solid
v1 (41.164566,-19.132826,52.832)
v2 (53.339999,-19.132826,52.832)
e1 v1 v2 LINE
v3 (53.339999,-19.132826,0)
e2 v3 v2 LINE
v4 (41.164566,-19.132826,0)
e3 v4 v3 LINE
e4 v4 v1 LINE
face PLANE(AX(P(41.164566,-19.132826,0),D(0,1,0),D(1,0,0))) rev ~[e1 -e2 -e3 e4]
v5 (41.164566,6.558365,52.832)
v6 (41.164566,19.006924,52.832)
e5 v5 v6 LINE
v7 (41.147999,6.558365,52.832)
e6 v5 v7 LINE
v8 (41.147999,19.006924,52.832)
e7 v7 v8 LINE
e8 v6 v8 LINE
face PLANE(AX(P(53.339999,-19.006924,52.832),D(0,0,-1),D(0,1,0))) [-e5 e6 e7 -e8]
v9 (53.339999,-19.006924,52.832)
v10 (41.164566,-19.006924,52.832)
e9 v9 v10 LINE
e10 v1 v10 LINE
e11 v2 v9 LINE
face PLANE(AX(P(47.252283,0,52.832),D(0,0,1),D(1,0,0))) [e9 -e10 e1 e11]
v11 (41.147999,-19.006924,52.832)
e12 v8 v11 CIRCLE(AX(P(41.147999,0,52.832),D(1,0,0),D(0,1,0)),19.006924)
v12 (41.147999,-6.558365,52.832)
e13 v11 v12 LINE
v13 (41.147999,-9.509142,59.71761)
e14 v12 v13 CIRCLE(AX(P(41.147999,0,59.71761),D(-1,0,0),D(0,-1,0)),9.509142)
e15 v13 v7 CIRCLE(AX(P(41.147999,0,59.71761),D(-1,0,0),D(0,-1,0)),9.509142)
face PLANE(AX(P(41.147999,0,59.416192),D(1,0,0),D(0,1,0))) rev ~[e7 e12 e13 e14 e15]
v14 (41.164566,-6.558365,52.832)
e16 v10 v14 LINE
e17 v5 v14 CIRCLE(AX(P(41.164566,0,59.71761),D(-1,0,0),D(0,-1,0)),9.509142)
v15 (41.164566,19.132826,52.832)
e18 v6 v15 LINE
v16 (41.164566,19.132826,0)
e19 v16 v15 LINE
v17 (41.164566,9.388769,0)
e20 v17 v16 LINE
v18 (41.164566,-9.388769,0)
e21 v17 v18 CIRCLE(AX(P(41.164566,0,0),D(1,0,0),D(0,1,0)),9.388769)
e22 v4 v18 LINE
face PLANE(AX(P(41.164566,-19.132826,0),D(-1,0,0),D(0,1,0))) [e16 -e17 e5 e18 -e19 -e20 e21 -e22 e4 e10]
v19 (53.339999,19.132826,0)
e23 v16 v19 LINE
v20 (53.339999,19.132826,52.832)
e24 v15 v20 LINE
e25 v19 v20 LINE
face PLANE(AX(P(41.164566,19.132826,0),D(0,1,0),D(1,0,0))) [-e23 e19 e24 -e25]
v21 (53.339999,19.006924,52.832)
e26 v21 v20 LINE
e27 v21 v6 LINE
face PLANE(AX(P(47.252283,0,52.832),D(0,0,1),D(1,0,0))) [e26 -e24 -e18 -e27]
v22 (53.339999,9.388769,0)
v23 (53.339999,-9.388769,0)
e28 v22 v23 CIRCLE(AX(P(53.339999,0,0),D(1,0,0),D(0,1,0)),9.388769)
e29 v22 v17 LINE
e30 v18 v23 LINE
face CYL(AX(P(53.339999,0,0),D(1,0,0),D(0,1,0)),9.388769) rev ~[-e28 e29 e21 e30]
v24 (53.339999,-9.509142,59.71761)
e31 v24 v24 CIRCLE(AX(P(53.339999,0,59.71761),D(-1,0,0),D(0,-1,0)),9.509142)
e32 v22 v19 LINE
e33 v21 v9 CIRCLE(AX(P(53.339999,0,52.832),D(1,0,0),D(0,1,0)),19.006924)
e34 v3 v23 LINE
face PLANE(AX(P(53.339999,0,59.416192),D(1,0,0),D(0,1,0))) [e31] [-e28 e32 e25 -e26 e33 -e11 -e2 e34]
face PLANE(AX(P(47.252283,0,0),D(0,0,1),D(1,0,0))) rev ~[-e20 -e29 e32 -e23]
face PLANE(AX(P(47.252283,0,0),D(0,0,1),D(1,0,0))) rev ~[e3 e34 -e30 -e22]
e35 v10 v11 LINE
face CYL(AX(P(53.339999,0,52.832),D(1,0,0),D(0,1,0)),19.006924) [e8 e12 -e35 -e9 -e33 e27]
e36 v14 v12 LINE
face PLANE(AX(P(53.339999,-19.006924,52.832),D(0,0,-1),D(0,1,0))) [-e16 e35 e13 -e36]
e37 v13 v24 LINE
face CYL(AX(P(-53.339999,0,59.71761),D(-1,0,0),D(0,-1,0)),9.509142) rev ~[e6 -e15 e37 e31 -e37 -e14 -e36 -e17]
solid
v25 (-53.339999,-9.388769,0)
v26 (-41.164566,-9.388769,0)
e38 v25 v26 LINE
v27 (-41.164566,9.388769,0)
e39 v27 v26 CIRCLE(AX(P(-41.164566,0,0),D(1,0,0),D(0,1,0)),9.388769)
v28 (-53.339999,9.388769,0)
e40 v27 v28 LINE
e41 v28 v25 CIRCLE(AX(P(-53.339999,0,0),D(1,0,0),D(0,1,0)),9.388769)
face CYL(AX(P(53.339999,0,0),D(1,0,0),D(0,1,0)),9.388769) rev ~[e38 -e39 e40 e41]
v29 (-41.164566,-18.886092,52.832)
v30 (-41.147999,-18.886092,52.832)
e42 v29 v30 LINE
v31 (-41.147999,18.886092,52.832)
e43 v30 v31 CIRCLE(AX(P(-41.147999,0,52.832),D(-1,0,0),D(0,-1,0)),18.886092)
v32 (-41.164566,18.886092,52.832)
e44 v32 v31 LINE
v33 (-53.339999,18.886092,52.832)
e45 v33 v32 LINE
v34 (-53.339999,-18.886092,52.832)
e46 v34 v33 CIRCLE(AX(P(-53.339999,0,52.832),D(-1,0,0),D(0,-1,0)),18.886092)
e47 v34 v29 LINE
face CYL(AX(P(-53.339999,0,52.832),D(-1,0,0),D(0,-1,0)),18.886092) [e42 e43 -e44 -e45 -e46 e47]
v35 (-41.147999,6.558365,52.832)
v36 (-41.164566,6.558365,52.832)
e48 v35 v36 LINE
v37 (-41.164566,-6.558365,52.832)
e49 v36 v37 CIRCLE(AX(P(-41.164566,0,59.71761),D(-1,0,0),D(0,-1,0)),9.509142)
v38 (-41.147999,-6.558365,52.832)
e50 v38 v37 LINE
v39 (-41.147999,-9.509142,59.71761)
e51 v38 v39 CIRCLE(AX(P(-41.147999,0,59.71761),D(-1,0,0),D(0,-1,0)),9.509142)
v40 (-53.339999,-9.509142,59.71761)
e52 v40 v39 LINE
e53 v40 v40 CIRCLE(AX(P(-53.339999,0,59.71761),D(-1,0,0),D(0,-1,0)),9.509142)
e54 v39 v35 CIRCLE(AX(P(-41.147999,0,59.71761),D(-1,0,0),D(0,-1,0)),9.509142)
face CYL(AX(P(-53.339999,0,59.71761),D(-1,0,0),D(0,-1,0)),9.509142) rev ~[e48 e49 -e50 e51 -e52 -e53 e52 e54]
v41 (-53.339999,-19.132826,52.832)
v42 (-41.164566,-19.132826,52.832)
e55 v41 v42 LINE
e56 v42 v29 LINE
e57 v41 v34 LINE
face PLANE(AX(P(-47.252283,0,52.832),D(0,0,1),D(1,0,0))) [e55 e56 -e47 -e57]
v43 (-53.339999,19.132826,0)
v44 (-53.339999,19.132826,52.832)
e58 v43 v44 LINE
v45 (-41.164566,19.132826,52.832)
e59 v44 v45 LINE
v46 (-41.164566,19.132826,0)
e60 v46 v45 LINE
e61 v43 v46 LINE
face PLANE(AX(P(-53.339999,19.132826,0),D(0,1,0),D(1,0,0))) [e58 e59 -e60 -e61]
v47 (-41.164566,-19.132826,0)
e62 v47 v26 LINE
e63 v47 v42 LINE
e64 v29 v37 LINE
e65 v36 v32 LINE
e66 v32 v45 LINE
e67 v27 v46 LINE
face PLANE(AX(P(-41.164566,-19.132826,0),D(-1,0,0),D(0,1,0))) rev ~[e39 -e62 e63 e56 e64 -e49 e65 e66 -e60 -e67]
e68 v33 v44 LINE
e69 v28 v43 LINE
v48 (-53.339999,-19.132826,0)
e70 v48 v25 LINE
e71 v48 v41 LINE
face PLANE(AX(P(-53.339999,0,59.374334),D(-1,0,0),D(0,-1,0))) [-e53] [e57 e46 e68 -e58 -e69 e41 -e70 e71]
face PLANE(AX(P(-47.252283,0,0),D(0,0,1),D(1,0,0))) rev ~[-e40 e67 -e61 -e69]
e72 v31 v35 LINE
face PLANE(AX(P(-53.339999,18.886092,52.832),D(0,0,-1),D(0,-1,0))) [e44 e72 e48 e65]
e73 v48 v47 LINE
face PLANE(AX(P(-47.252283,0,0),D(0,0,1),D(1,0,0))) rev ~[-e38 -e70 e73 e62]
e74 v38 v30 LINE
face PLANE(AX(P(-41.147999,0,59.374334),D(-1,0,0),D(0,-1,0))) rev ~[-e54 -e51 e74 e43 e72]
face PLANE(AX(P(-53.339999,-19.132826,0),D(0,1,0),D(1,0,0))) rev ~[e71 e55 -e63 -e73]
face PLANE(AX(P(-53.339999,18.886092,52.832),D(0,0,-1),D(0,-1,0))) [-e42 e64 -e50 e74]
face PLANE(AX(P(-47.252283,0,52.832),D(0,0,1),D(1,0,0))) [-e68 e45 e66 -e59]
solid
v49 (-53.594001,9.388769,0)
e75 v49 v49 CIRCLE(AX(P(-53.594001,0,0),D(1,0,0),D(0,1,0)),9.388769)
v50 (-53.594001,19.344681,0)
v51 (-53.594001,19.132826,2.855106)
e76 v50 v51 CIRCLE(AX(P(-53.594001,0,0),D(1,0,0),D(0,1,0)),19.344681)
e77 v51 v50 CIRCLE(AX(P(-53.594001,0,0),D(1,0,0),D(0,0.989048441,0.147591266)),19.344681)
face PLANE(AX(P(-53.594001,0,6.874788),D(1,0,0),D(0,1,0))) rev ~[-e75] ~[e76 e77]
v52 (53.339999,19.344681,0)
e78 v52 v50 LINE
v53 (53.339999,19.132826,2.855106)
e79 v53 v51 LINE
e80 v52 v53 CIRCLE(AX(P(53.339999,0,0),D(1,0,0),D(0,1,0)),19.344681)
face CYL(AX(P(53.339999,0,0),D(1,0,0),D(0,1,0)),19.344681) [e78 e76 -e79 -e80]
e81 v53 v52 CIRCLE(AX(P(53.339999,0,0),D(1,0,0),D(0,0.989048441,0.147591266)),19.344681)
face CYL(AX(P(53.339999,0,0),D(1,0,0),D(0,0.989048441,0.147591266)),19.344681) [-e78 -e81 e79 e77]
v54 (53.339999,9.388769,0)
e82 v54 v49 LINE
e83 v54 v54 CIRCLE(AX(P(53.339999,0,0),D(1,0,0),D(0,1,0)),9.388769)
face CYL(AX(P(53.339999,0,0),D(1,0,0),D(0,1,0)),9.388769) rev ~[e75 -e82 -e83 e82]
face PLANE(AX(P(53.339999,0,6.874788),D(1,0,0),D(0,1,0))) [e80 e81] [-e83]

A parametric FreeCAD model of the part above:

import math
import FreeCAD as App
import Part
import Sketcher
Q = App.Units.Quantity

doc = App.newDocument("Part")
body = doc.addObject("PartDesign::Body", "Body")

# Sketch on XY plane
sketch1 = doc.addObject("Sketcher::SketchObject", "Sketch")
body.addObject(sketch1)
sketch1.AttachmentSupport = (doc.XY_Plane, [""])
sketch1.MapMode = "FlatFace"
sketch1.addGeometry([
    Part.LineSegment(App.Vector(41.164566, 19.132826, 0), App.Vector(41.164566, -19.132826, 0)),
    Part.LineSegment(App.Vector(41.164566, -19.132826, 0), App.Vector(53.339999, -19.132826, 0)),
    Part.LineSegment(App.Vector(53.339999, -19.132826, 0), App.Vector(53.339999, 19.132826, 0)),
    Part.LineSegment(App.Vector(53.339999, 19.132826, 0), App.Vector(41.164566, 19.132826, 0)),
], False)
sketch1.addConstraint([
    Sketcher.Constraint("Coincident", 0, 2, 1, 1),
    Sketcher.Constraint("Coincident", 1, 2, 2, 1),
    Sketcher.Constraint("Coincident", 2, 2, 3, 1),
    Sketcher.Constraint("Coincident", 3, 2, 0, 1),
    Sketcher.Constraint("Vertical", 0),
    Sketcher.Constraint("Horizontal", 1),
    Sketcher.Constraint("Vertical", 2),
    Sketcher.Constraint("Horizontal", 3),
    Sketcher.Constraint("DistanceX", -1, 1, 1, 2, Q("2.1 in")),
    Sketcher.Constraint("DistanceX", 1, 1, 1, 2, 12.175433),
    Sketcher.Constraint("DistanceY", 0, 2, 0, 1, 38.265653),
    Sketcher.Constraint("DistanceY", 0, 2, -1, 1, 19.132826),
])
pad1 = doc.addObject("PartDesign::Pad", "Pad")
body.addObject(pad1)
pad1.Profile = sketch1
pad1.Length = Q("2.08 in")

# Sketch on YZ plane
sketch2 = doc.addObject("Sketcher::SketchObject", "Sketch001")
body.addObject(sketch2)
sketch2.AttachmentSupport = (doc.YZ_Plane, [""])
sketch2.MapMode = "FlatFace"
sketch2.AttachmentOffset = App.Placement(App.Vector(0, 0, 2.1 * 25.4), App.Rotation())
sketch2.addGeometry([
    Part.LineSegment(App.Vector(-19.006924, 52.832, 0), App.Vector(19.006924, 52.832, 0)),
    Part.ArcOfCircle(Part.Circle(App.Vector(0, 52.832, 0), App.Vector(0, 0, 1), 19.006924), math.radians(0), math.radians(180)),
], False)
sketch2.addConstraint([
    Sketcher.Constraint("Coincident", 0, 1, 1, 2),
    Sketcher.Constraint("Coincident", 1, 1, 0, 2),
    Sketcher.Constraint("Horizontal", 0),
    Sketcher.Constraint("PointOnObject", 1, 3, -2),
    Sketcher.Constraint("Horizontal", 1, 3, 0, 1),
    Sketcher.Constraint("DistanceY", -1, 1, 1, 3, Q("2.08 in")),
    Sketcher.Constraint("Radius", 1, 19.006924),
])
pad2 = doc.addObject("PartDesign::Pad", "Pad001")
body.addObject(pad2)
pad2.Profile = sketch2
pad2.Length = Q("0.48 in")
pad2.Reversed = True
body2 = doc.addObject("PartDesign::Body", "Body001")

# Sketch on XY plane
sketch3 = doc.addObject("Sketcher::SketchObject", "Sketch002")
body2.addObject(sketch3)
sketch3.AttachmentSupport = (doc.getObject("XY_Plane001"), [""])
sketch3.MapMode = "FlatFace"
sketch3.addGeometry([
    Part.LineSegment(App.Vector(-53.339999, 19.132826, 0), App.Vector(-53.339999, -19.132826, 0)),
    Part.LineSegment(App.Vector(-53.339999, -19.132826, 0), App.Vector(-41.164566, -19.132826, 0)),
    Part.LineSegment(App.Vector(-41.164566, -19.132826, 0), App.Vector(-41.164566, 19.132826, 0)),
    Part.LineSegment(App.Vector(-41.164566, 19.132826, 0), App.Vector(-53.339999, 19.132826, 0)),
], False)
sketch3.addConstraint([
    Sketcher.Constraint("Coincident", 0, 2, 1, 1),
    Sketcher.Constraint("Coincident", 1, 2, 2, 1),
    Sketcher.Constraint("Coincident", 2, 2, 3, 1),
    Sketcher.Constraint("Coincident", 3, 2, 0, 1),
    Sketcher.Constraint("Vertical", 0),
    Sketcher.Constraint("Horizontal", 1),
    Sketcher.Constraint("Vertical", 2),
    Sketcher.Constraint("Horizontal", 3),
    Sketcher.Constraint("DistanceX", 0, 2, -1, 1, Q("2.1 in")),
    Sketcher.Constraint("DistanceX", 1, 1, 1, 2, 12.175433),
    Sketcher.Constraint("DistanceY", 0, 2, 0, 1, 38.265653),
    Sketcher.Constraint("DistanceY", 0, 2, -1, 1, 19.132826),
])
pad3 = doc.addObject("PartDesign::Pad", "Pad002")
body2.addObject(pad3)
pad3.Profile = sketch3
pad3.Length = Q("2.08 in")

# Sketch on YZ plane
sketch4 = doc.addObject("Sketcher::SketchObject", "Sketch003")
body2.addObject(sketch4)
sketch4.AttachmentSupport = (doc.getObject("YZ_Plane001"), [""])
sketch4.MapMode = "FlatFace"
sketch4.AttachmentOffset = App.Placement(App.Vector(0, 0, -2.1 * 25.4), App.Rotation())
sketch4.addGeometry([
    Part.LineSegment(App.Vector(18.886092, 52.832, 0), App.Vector(-18.886092, 52.832, 0)),
    Part.ArcOfCircle(Part.Circle(App.Vector(0, 52.832, 0), App.Vector(0, 0, 1), 18.886092), math.radians(0), math.radians(180)),
], False)
sketch4.addConstraint([
    Sketcher.Constraint("Coincident", 0, 1, 1, 1),
    Sketcher.Constraint("Coincident", 1, 2, 0, 2),
    Sketcher.Constraint("Horizontal", 0),
    Sketcher.Constraint("PointOnObject", 1, 3, -2),
    Sketcher.Constraint("Horizontal", 1, 3, 0, 1),
    Sketcher.Constraint("DistanceY", -1, 1, 1, 3, Q("2.08 in")),
    Sketcher.Constraint("Radius", 1, 18.886092),
])
pad4 = doc.addObject("PartDesign::Pad", "Pad003")
body2.addObject(pad4)
pad4.Profile = sketch4
pad4.Length = Q("0.48 in")
body3 = doc.addObject("PartDesign::Body", "Body002")

# Sketch on YZ plane
sketch5 = doc.addObject("Sketcher::SketchObject", "Sketch004")
body3.addObject(sketch5)
sketch5.AttachmentSupport = (doc.getObject("YZ_Plane002"), [""])
sketch5.MapMode = "FlatFace"
sketch5.AttachmentOffset = App.Placement(App.Vector(0, 0, 2.1 * 25.4), App.Rotation())
sketch5.addGeometry([
    Part.ArcOfCircle(Part.Circle(App.Vector(0, 0, 0), App.Vector(0, 0, 1), 19.344681), math.radians(8.487363), math.radians(360)),
    Part.ArcOfCircle(Part.Circle(App.Vector(0, 0, 0), App.Vector(0, 0, 1), 19.344681), math.radians(0), math.radians(8.487363)),
], False)
sketch5.addConstraint([
    Sketcher.Constraint("Tangent", 0, 1, 1, 2),
    Sketcher.Constraint("Coincident", 1, 1, 0, 2),
    Sketcher.Constraint("Coincident", 0, 3, -1, 1),
    Sketcher.Constraint("PointOnObject", 1, 1, -1),
    Sketcher.Constraint("Radius", 0, 19.344681),
    Sketcher.Constraint("DistanceX", -1, 1, 0, 1, 19.132826),
])
pad5 = doc.addObject("PartDesign::Pad", "Pad004")
body3.addObject(pad5)
pad5.Profile = sketch5
pad5.Length = Q("4.21 in")
pad5.Reversed = True
body4 = doc.addObject("PartDesign::Body", "Body003")

# Sketch on YZ plane
sketch6 = doc.addObject("Sketcher::SketchObject", "Sketch005")
body4.addObject(sketch6)
sketch6.AttachmentSupport = (doc.getObject("YZ_Plane003"), [""])
sketch6.MapMode = "FlatFace"
sketch6.AttachmentOffset = App.Placement(App.Vector(0, 0, -2.1 * 25.4), App.Rotation())
sketch6.addGeometry(Part.Circle(App.Vector(0, 59.71761, 0), App.Vector(0, 0, 1), 9.509142), False)
sketch6.addConstraint([
    Sketcher.Constraint("PointOnObject", 0, 3, -2),
    Sketcher.Constraint("Diameter", 0, 19.018284),
    Sketcher.Constraint("DistanceY", -1, 1, 0, 3, 59.71761),
])
pad6 = doc.addObject("PartDesign::Pad", "Pad005")
body4.addObject(pad6)
pad6.Profile = sketch6
pad6.Length = Q("4.69 in")
doc.recompute()

body5 = doc.addObject("PartDesign::Body", "Body004")
body5.BaseFeature = body4
boolean = doc.addObject("PartDesign::Boolean", "Boolean")
body.addObject(boolean)
boolean.Type = "Cut"
boolean.addObjects([body5])
doc.recompute()

boolean2 = doc.addObject("PartDesign::Boolean", "Boolean001")
body2.addObject(boolean2)
boolean2.Type = "Cut"
boolean2.addObjects([body4])
body6 = doc.addObject("PartDesign::Body", "Body005")

# Sketch on YZ plane
sketch7 = doc.addObject("Sketcher::SketchObject", "Sketch006")
body6.addObject(sketch7)
sketch7.AttachmentSupport = (doc.getObject("YZ_Plane005"), [""])
sketch7.MapMode = "FlatFace"
sketch7.AttachmentOffset = App.Placement(App.Vector(0, 0, 2.1 * 25.4), App.Rotation())
sketch7.addGeometry(Part.Circle(App.Vector(0, 0, 0), App.Vector(0, 0, 1), 9.388769), False)
sketch7.addConstraint([
    Sketcher.Constraint("Coincident", 0, 3, -1, 1),
    Sketcher.Constraint("Diameter", 0, 18.777538),
])
pad7 = doc.addObject("PartDesign::Pad", "Pad006")
body6.addObject(pad7)
pad7.Profile = sketch7
pad7.Length = 106.935
pad7.Reversed = True
doc.recompute()

body7 = doc.addObject("PartDesign::Body", "Body006")
body7.BaseFeature = body6
boolean3 = doc.addObject("PartDesign::Boolean", "Boolean002")
body.addObject(boolean3)
boolean3.Type = "Cut"
boolean3.addObjects([body7])
doc.recompute()

body8 = doc.addObject("PartDesign::Body", "Body007")
body8.BaseFeature = body6
boolean4 = doc.addObject("PartDesign::Boolean", "Boolean003")
body2.addObject(boolean4)
boolean4.Type = "Cut"
boolean4.addObjects([body8])
doc.recompute()

boolean5 = doc.addObject("PartDesign::Boolean", "Boolean004")
body3.addObject(boolean5)
boolean5.Type = "Cut"
boolean5.addObjects([body6])

doc.recompute()
